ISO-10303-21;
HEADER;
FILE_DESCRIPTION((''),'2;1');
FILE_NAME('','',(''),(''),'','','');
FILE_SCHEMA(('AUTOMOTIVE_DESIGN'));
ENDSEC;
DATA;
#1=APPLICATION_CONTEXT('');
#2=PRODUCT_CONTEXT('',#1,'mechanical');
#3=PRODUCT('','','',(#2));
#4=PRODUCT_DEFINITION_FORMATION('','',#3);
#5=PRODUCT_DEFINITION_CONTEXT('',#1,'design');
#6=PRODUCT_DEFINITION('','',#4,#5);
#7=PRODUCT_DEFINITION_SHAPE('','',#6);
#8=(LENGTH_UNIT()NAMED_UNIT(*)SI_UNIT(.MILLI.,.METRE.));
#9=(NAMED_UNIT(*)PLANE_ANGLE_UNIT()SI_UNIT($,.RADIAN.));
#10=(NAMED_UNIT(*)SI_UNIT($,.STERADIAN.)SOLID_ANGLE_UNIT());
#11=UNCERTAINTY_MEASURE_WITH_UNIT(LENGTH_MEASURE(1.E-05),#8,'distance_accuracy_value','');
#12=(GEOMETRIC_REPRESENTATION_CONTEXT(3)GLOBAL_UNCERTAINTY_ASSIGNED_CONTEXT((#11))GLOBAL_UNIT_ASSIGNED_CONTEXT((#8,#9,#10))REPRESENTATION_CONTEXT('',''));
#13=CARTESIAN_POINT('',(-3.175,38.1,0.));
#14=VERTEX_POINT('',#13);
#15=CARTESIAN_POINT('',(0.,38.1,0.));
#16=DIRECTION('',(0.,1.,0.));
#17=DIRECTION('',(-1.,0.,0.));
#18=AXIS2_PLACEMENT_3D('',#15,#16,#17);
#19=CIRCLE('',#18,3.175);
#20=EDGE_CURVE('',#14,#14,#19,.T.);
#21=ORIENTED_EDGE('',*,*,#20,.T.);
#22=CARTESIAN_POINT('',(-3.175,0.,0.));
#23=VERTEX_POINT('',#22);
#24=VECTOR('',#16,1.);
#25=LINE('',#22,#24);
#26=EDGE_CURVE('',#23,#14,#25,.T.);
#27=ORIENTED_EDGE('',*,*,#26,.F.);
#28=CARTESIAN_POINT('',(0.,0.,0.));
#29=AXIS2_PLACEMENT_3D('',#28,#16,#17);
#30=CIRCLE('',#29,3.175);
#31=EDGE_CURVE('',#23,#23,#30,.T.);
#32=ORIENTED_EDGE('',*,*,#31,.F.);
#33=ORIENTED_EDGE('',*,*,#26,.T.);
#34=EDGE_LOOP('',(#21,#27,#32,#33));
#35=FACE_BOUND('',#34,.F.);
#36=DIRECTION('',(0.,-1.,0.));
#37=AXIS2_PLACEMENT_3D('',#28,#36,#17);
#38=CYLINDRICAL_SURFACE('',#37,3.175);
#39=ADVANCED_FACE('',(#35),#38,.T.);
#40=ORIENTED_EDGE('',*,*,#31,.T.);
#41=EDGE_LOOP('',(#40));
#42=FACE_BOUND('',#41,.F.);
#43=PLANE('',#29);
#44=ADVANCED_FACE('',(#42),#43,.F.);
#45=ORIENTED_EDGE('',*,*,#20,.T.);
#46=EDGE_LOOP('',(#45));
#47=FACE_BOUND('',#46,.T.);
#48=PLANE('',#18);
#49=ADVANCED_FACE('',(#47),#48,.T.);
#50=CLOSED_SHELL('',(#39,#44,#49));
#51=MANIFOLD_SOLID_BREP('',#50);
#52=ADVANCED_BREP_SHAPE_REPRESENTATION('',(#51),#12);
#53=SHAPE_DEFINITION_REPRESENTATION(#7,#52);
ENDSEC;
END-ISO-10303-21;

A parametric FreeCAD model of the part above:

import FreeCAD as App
import Part
import Sketcher

V = App.Vector
Q = App.Units.Quantity

doc = App.newDocument("Part")
body = doc.addObject("PartDesign::Body", "Body")

sketch1 = body.newObject("Sketcher::SketchObject", "Sketch")
sketch1.AttachmentSupport = (doc.getObject("XZ_Plane"), [""])
sketch1.MapMode = "FlatFace"
sketch1.addGeometry(Part.Circle(V(0, 0, 0), V(0, 0, 1), 3.175), False)
sketch1.addConstraint(Sketcher.Constraint("Coincident", 0, 3, -1, 1))
sketch1.addConstraint(Sketcher.Constraint("Diameter", 0, Q("0.25 in")))
pad1 = body.newObject("PartDesign::Pad", "Pad")
pad1.Profile = sketch1
pad1.Length = Q("1.5 in")
pad1.Reversed = True

doc.recompute()
